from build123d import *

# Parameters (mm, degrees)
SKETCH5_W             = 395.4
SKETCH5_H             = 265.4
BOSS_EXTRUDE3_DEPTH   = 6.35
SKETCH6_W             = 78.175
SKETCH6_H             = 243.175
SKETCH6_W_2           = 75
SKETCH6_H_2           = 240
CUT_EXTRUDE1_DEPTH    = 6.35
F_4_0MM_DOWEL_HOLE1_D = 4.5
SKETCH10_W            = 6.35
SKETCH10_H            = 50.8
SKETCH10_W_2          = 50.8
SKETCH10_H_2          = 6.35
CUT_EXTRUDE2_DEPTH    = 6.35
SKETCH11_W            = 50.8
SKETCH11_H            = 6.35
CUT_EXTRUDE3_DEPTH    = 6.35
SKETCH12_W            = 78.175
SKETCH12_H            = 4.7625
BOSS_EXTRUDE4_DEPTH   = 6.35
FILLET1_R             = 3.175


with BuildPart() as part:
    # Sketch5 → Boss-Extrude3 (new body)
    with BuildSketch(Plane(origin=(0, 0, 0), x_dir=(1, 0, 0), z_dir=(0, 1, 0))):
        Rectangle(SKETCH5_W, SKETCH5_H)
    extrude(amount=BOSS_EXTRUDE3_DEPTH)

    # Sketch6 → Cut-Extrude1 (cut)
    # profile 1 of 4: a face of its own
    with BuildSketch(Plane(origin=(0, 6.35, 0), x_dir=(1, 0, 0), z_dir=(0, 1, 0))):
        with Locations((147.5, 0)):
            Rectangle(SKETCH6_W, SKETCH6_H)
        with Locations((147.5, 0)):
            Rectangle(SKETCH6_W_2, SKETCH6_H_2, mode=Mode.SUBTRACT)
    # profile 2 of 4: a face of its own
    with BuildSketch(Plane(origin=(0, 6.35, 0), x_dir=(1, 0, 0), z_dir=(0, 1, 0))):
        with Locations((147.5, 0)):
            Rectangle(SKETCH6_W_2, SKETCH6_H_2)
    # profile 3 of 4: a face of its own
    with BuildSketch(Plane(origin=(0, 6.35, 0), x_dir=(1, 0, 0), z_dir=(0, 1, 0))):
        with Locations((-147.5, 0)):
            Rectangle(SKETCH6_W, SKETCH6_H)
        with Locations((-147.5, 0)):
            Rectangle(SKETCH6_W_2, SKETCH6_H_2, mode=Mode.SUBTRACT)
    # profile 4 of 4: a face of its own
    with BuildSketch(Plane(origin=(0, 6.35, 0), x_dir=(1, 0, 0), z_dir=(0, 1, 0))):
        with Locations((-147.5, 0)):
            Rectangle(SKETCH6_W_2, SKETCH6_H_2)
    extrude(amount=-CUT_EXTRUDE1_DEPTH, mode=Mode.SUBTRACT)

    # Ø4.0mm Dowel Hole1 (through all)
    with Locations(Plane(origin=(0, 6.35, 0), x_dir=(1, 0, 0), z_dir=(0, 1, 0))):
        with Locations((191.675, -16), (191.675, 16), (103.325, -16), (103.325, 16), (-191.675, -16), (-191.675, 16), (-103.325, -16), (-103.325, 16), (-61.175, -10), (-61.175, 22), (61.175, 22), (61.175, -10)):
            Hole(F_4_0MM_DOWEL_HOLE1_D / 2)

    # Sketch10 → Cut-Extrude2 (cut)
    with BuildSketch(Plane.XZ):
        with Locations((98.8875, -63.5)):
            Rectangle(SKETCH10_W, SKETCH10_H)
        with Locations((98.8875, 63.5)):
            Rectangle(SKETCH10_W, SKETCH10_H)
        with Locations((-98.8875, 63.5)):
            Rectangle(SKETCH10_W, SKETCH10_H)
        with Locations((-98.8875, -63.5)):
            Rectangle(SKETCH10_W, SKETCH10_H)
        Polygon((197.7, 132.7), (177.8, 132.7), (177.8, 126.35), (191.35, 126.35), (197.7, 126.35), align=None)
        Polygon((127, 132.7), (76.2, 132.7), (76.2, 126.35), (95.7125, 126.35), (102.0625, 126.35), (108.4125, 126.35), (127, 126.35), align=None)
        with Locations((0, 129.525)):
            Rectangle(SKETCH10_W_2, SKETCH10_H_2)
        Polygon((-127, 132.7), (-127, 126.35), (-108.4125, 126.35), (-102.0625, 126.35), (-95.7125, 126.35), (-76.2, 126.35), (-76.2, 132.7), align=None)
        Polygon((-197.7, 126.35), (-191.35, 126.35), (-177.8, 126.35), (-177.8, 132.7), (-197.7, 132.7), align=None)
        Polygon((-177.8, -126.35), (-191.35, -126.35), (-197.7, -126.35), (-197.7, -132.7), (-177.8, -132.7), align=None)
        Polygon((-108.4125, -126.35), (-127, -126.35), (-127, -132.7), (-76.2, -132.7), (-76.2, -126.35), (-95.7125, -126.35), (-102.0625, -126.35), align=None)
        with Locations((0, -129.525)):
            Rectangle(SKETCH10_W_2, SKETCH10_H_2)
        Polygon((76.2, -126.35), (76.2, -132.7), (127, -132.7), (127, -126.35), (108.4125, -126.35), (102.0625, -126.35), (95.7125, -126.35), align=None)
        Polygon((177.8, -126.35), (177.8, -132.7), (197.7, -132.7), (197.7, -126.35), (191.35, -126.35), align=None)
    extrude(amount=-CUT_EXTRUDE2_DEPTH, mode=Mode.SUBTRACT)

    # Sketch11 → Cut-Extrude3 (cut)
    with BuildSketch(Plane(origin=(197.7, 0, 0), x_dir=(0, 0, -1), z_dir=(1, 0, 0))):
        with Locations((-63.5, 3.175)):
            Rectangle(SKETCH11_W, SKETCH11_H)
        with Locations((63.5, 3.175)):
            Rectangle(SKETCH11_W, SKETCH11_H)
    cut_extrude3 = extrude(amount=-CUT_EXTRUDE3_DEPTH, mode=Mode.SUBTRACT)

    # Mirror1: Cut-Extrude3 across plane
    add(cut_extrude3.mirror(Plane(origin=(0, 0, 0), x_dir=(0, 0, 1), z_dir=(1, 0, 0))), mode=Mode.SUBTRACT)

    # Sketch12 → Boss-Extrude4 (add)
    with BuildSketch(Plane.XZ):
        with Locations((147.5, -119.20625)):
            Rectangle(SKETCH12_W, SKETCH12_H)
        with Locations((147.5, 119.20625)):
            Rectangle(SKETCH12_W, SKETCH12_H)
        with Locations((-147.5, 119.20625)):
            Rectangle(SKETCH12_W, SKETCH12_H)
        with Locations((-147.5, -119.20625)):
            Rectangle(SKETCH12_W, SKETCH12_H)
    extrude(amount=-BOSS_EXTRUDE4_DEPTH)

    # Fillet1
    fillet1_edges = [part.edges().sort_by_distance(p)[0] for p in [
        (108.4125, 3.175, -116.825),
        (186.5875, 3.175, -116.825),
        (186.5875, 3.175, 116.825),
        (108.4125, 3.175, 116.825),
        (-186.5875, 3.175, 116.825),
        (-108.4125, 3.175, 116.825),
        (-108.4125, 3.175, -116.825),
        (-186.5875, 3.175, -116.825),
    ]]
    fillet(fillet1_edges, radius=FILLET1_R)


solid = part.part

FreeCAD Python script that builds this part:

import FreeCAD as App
import Part
import Sketcher
from FreeCAD import Vector


def edges_at(feature, points):
    """Names of the edges that pass closest to the given points."""
    edges = feature.Shape.Edges
    near = lambda p: min(range(len(edges)), key=lambda i: edges[i].distToShape(Part.Vertex(*p))[0])
    return sorted({f"Edge{near(p) + 1}" for p in points})

doc = App.newDocument("Part")
body = doc.addObject("PartDesign::Body", "Body")

# Sketch on XZ plane
sketch1 = body.newObject("Sketcher::SketchObject", "Sketch")
sketch1.AttachmentSupport = (doc.getObject("XZ_Plane"), [""])
sketch1.MapMode = "FlatFace"
sketch1.addGeometry([
    Part.LineSegment(Vector(-198, -133, 0), Vector(-198, 133, 0)),
    Part.LineSegment(Vector(-198, 133, 0), Vector(198, 133, 0)),
    Part.LineSegment(Vector(198, 133, 0), Vector(198, -133, 0)),
    Part.LineSegment(Vector(198, -133, 0), Vector(-198, -133, 0)),
], False)
sketch1.addConstraint([
    Sketcher.Constraint("Coincident", 0, 2, 1, 1),
    Sketcher.Constraint("Coincident", 1, 2, 2, 1),
    Sketcher.Constraint("Coincident", 2, 2, 3, 1),
    Sketcher.Constraint("Coincident", 3, 2, 0, 1),
    Sketcher.Constraint("Vertical", 0),
    Sketcher.Constraint("Horizontal", 1),
    Sketcher.Constraint("Vertical", 2),
    Sketcher.Constraint("Horizontal", 3),
    Sketcher.Constraint("Symmetric", 0, 2, 2, 2, -1, 1),
    Sketcher.Constraint("DistanceX", 1, 1, 1, 2, 395.4),
    Sketcher.Constraint("DistanceY", 0, 1, 0, 2, 265.4),
])
pad1 = body.newObject("PartDesign::Pad", "Pad")
pad1.Profile = sketch1
pad1.Length = 6.35
pad1.Reversed = True

# Sketch on XZ plane
sketch2 = body.newObject("Sketcher::SketchObject", "Sketch001")
sketch2.AttachmentSupport = (doc.getObject("XZ_Plane"), [""])
sketch2.MapMode = "FlatFace"
sketch2.AttachmentOffset = App.Placement(Vector(0, 0, -6.35), App.Rotation())
sketch2.addGeometry([
    Part.LineSegment(Vector(108, -122, 0), Vector(108, 122, 0)),  # 0
    Part.LineSegment(Vector(108, 122, 0), Vector(187, 122, 0)),  # 1
    Part.LineSegment(Vector(187, 122, 0), Vector(187, -122, 0)),  # 2
    Part.LineSegment(Vector(187, -122, 0), Vector(108, -122, 0)),  # 3
    Part.LineSegment(Vector(-187, -122, 0), Vector(-187, 122, 0)),  # 4
    Part.LineSegment(Vector(-187, 122, 0), Vector(-108, 122, 0)),  # 5
    Part.LineSegment(Vector(-108, 122, 0), Vector(-108, -122, 0)),  # 6
    Part.LineSegment(Vector(-108, -122, 0), Vector(-187, -122, 0)),  # 7
], False)
sketch2.addConstraint([
    Sketcher.Constraint("Coincident", 0, 2, 1, 1),
    Sketcher.Constraint("Coincident", 1, 2, 2, 1),
    Sketcher.Constraint("Coincident", 2, 2, 3, 1),
    Sketcher.Constraint("Coincident", 3, 2, 0, 1),
    Sketcher.Constraint("Coincident", 4, 2, 5, 1),
    Sketcher.Constraint("Coincident", 5, 2, 6, 1),
    Sketcher.Constraint("Coincident", 6, 2, 7, 1),
    Sketcher.Constraint("Coincident", 7, 2, 4, 1),
    Sketcher.Constraint("Vertical", 0),
    Sketcher.Constraint("Horizontal", 1),
    Sketcher.Constraint("Vertical", 2),
    Sketcher.Constraint("Horizontal", 3),
    Sketcher.Constraint("Vertical", 4),
    Sketcher.Constraint("Horizontal", 5),
    Sketcher.Constraint("Vertical", 6),
    Sketcher.Constraint("Horizontal", 7),
    Sketcher.Constraint("Symmetric", 2, 2, 4, 2, -1, 1),
    Sketcher.Constraint("Symmetric", 0, 2, 6, 2, -1, 1),
    Sketcher.Constraint("Horizontal", 1, 2, 4, 2),
    Sketcher.Constraint("DistanceX", 4, 2, 0, 2, 295.0),
    Sketcher.Constraint("DistanceX", 1, 1, 1, 2, 78.175),
    Sketcher.Constraint("DistanceY", 0, 1, 0, 2, 243.175),
])
pocket1 = body.newObject("PartDesign::Pocket", "Pocket")
pocket1.Profile = sketch2
pocket1.Length = 6.35
pocket1.Reversed = True

# Sketch on XZ plane
sketch3 = body.newObject("Sketcher::SketchObject", "Sketch002")
sketch3.AttachmentSupport = (doc.getObject("XZ_Plane"), [""])
sketch3.MapMode = "FlatFace"
sketch3.AttachmentOffset = App.Placement(Vector(0, 0, -6.35), App.Rotation())
sketch3.addGeometry([
    Part.Circle(Vector(191.7, 16, 0), Vector(0, 0, 1), 2.2),  # 0
    Part.Circle(Vector(191.7, -16, 0), Vector(0, 0, 1), 2.2),  # 1
    Part.Circle(Vector(103.3, 16, 0), Vector(0, 0, 1), 2.2),  # 2
    Part.Circle(Vector(103.3, -16, 0), Vector(0, 0, 1), 2.2),  # 3
    Part.Circle(Vector(-191.7, 16, 0), Vector(0, 0, 1), 2.2),  # 4
    Part.Circle(Vector(-191.7, -16, 0), Vector(0, 0, 1), 2.2),  # 5
    Part.Circle(Vector(-103.3, 16, 0), Vector(0, 0, 1), 2.2),  # 6
    Part.Circle(Vector(-103.3, -16, 0), Vector(0, 0, 1), 2.2),  # 7
    Part.Circle(Vector(-61.2, 10, 0), Vector(0, 0, 1), 2.2),  # 8
    Part.Circle(Vector(-61.2, -22, 0), Vector(0, 0, 1), 2.2),  # 9
    Part.Circle(Vector(61.2, -22, 0), Vector(0, 0, 1), 2.2),  # 10
    Part.Circle(Vector(61.2, 10, 0), Vector(0, 0, 1), 2.2),  # 11
], False)
sketch3.addConstraint([
    Sketcher.Constraint("Equal", 0, 1),
    Sketcher.Constraint("Equal", 1, 2),
    Sketcher.Constraint("Equal", 2, 3),
    Sketcher.Constraint("Equal", 3, 4),
    Sketcher.Constraint("Equal", 4, 5),
    Sketcher.Constraint("Equal", 5, 6),
    Sketcher.Constraint("Equal", 6, 7),
    Sketcher.Constraint("Equal", 7, 8),
    Sketcher.Constraint("Equal", 8, 9),
    Sketcher.Constraint("Equal", 9, 10),
    Sketcher.Constraint("Equal", 10, 11),
    Sketcher.Constraint("Symmetric", 1, 3, 4, 3, -1, 1),
    Sketcher.Constraint("Symmetric", 0, 3, 5, 3, -1, 1),
    Sketcher.Constraint("Symmetric", 3, 3, 6, 3, -1, 1),
    Sketcher.Constraint("Symmetric", 2, 3, 7, 3, -1, 1),
    Sketcher.Constraint("Symmetric", 0, 3, 4, 3, -2),
    Sketcher.Constraint("Symmetric", 2, 3, 6, 3, -2),
    Sketcher.Constraint("Symmetric", 9, 3, 10, 3, -2),
    Sketcher.Constraint("Symmetric", 8, 3, 11, 3, -2),
    Sketcher.Constraint("Horizontal", 0, 3, 2, 3),
    Sketcher.Constraint("Vertical", 8, 3, 9, 3),
    Sketcher.Constraint("Diameter", 0, 4.5),
    Sketcher.Constraint("DistanceY", -1, 1, 0, 3, 16.0),
    Sketcher.Constraint("DistanceY", -1, 1, 8, 3, 10.0),
    Sketcher.Constraint("DistanceY", 9, 3, -1, 1, 22.0),
    Sketcher.Constraint("DistanceX", 4, 3, 2, 3, 295.0),
    Sketcher.Constraint("DistanceX", 4, 3, 8, 3, 130.5),
    Sketcher.Constraint("DistanceX", 2, 3, 0, 3, 88.35),
])
doc.recompute()
hole = body.newObject("PartDesign::Hole", "Hole")
hole.Profile = sketch3
hole.ThreadType = "None"
hole.Diameter = 4.5
hole.DepthType = "ThroughAll"
hole.Reversed = True

# Sketch on XZ plane
sketch4 = body.newObject("Sketcher::SketchObject", "Sketch003")
sketch4.AttachmentSupport = (doc.getObject("XZ_Plane"), [""])
sketch4.MapMode = "FlatFace"
sketch4.addGeometry([
    Part.LineSegment(Vector(96, -38, 0), Vector(96, -89, 0)),  # 0
    Part.LineSegment(Vector(96, -89, 0), Vector(102, -89, 0)),  # 1
    Part.LineSegment(Vector(102, -89, 0), Vector(102, -38, 0)),  # 2
    Part.LineSegment(Vector(102, -38, 0), Vector(96, -38, 0)),  # 3
    Part.LineSegment(Vector(96, 89, 0), Vector(96, 38, 0)),  # 4
    Part.LineSegment(Vector(96, 38, 0), Vector(102, 38, 0)),  # 5
    Part.LineSegment(Vector(102, 38, 0), Vector(102, 89, 0)),  # 6
    Part.LineSegment(Vector(102, 89, 0), Vector(96, 89, 0)),  # 7
    Part.LineSegment(Vector(-102, 89, 0), Vector(-102, 38, 0)),  # 8
    Part.LineSegment(Vector(-102, 38, 0), Vector(-96, 38, 0)),  # 9
    Part.LineSegment(Vector(-96, 38, 0), Vector(-96, 89, 0)),  # 10
    Part.LineSegment(Vector(-96, 89, 0), Vector(-102, 89, 0)),  # 11
    Part.LineSegment(Vector(-102, -38, 0), Vector(-102, -89, 0)),  # 12
    Part.LineSegment(Vector(-102, -89, 0), Vector(-96, -89, 0)),  # 13
    Part.LineSegment(Vector(-96, -89, 0), Vector(-96, -38, 0)),  # 14
    Part.LineSegment(Vector(-96, -38, 0), Vector(-102, -38, 0)),  # 15
    Part.LineSegment(Vector(198, 133, 0), Vector(178, 133, 0)),  # 16
    Part.LineSegment(Vector(178, 133, 0), Vector(178, 126, 0)),  # 17
    Part.LineSegment(Vector(178, 126, 0), Vector(198, 126, 0)),  # 18
    Part.LineSegment(Vector(198, 126, 0), Vector(198, 133, 0)),  # 19
    Part.LineSegment(Vector(127, 133, 0), Vector(76, 133, 0)),  # 20
    Part.LineSegment(Vector(76, 133, 0), Vector(76, 126, 0)),  # 21
    Part.LineSegment(Vector(76, 126, 0), Vector(127, 126, 0)),  # 22
    Part.LineSegment(Vector(127, 126, 0), Vector(127, 133, 0)),  # 23
    Part.LineSegment(Vector(-25, 133, 0), Vector(-25, 126, 0)),  # 24
    Part.LineSegment(Vector(-25, 126, 0), Vector(25, 126, 0)),  # 25
    Part.LineSegment(Vector(25, 126, 0), Vector(25, 133, 0)),  # 26
    Part.LineSegment(Vector(25, 133, 0), Vector(-25, 133, 0)),  # 27
    Part.LineSegment(Vector(-127, 133, 0), Vector(-127, 126, 0)),  # 28
    Part.LineSegment(Vector(-127, 126, 0), Vector(-76, 126, 0)),  # 29
    Part.LineSegment(Vector(-76, 126, 0), Vector(-76, 133, 0)),  # 30
    Part.LineSegment(Vector(-76, 133, 0), Vector(-127, 133, 0)),  # 31
    Part.LineSegment(Vector(-198, 126, 0), Vector(-178, 126, 0)),  # 32
    Part.LineSegment(Vector(-178, 126, 0), Vector(-178, 133, 0)),  # 33
    Part.LineSegment(Vector(-178, 133, 0), Vector(-198, 133, 0)),  # 34
    Part.LineSegment(Vector(-198, 133, 0), Vector(-198, 126, 0)),  # 35
    Part.LineSegment(Vector(-178, -126, 0), Vector(-198, -126, 0)),  # 36
    Part.LineSegment(Vector(-198, -126, 0), Vector(-198, -133, 0)),  # 37
    Part.LineSegment(Vector(-198, -133, 0), Vector(-178, -133, 0)),  # 38
    Part.LineSegment(Vector(-178, -133, 0), Vector(-178, -126, 0)),  # 39
    Part.LineSegment(Vector(-127, -126, 0), Vector(-127, -133, 0)),  # 40
    Part.LineSegment(Vector(-127, -133, 0), Vector(-76, -133, 0)),  # 41
    Part.LineSegment(Vector(-76, -133, 0), Vector(-76, -126, 0)),  # 42
    Part.LineSegment(Vector(-76, -126, 0), Vector(-127, -126, 0)),  # 43
    Part.LineSegment(Vector(-25, -126, 0), Vector(-25, -133, 0)),  # 44
    Part.LineSegment(Vector(-25, -133, 0), Vector(25, -133, 0)),  # 45
    Part.LineSegment(Vector(25, -133, 0), Vector(25, -126, 0)),  # 46
    Part.LineSegment(Vector(25, -126, 0), Vector(-25, -126, 0)),  # 47
    Part.LineSegment(Vector(76, -126, 0), Vector(76, -133, 0)),  # 48
    Part.LineSegment(Vector(76, -133, 0), Vector(127, -133, 0)),  # 49
    Part.LineSegment(Vector(127, -133, 0), Vector(127, -126, 0)),  # 50
    Part.LineSegment(Vector(127, -126, 0), Vector(76, -126, 0)),  # 51
    Part.LineSegment(Vector(178, -126, 0), Vector(178, -133, 0)),  # 52
    Part.LineSegment(Vector(178, -133, 0), Vector(198, -133, 0)),  # 53
    Part.LineSegment(Vector(198, -133, 0), Vector(198, -126, 0)),  # 54
    Part.LineSegment(Vector(198, -126, 0), Vector(178, -126, 0)),  # 55
], False)
sketch4.addConstraint([
    Sketcher.Constraint("Coincident", 0, 2, 1, 1),
    Sketcher.Constraint("Coincident", 1, 2, 2, 1),
    Sketcher.Constraint("Coincident", 2, 2, 3, 1),
    Sketcher.Constraint("Coincident", 3, 2, 0, 1),
    Sketcher.Constraint("Coincident", 4, 2, 5, 1),
    Sketcher.Constraint("Coincident", 5, 2, 6, 1),
    Sketcher.Constraint("Coincident", 6, 2, 7, 1),
    Sketcher.Constraint("Coincident", 7, 2, 4, 1),
    Sketcher.Constraint("Coincident", 8, 2, 9, 1),
    Sketcher.Constraint("Coincident", 9, 2, 10, 1),
    Sketcher.Constraint("Coincident", 10, 2, 11, 1),
    Sketcher.Constraint("Coincident", 11, 2, 8, 1),
    Sketcher.Constraint("Coincident", 12, 2, 13, 1),
    Sketcher.Constraint("Coincident", 13, 2, 14, 1),
    Sketcher.Constraint("Coincident", 14, 2, 15, 1),
    Sketcher.Constraint("Coincident", 15, 2, 12, 1),
    Sketcher.Constraint("Coincident", 16, 2, 17, 1),
    Sketcher.Constraint("Coincident", 17, 2, 18, 1),
    Sketcher.Constraint("Coincident", 18, 2, 19, 1),
    Sketcher.Constraint("Coincident", 19, 2, 16, 1),
    Sketcher.Constraint("Coincident", 20, 2, 21, 1),
    Sketcher.Constraint("Coincident", 21, 2, 22, 1),
    Sketcher.Constraint("Coincident", 22, 2, 23, 1),
    Sketcher.Constraint("Coincident", 23, 2, 20, 1),
    Sketcher.Constraint("Coincident", 24, 2, 25, 1),
    Sketcher.Constraint("Coincident", 25, 2, 26, 1),
    Sketcher.Constraint("Coincident", 26, 2, 27, 1),
    Sketcher.Constraint("Coincident", 27, 2, 24, 1),
    Sketcher.Constraint("Coincident", 28, 2, 29, 1),
    Sketcher.Constraint("Coincident", 29, 2, 30, 1),
    Sketcher.Constraint("Coincident", 30, 2, 31, 1),
    Sketcher.Constraint("Coincident", 31, 2, 28, 1),
    Sketcher.Constraint("Coincident", 32, 2, 33, 1),
    Sketcher.Constraint("Coincident", 33, 2, 34, 1),
    Sketcher.Constraint("Coincident", 34, 2, 35, 1),
    Sketcher.Constraint("Coincident", 35, 2, 32, 1),
    Sketcher.Constraint("Coincident", 36, 2, 37, 1),
    Sketcher.Constraint("Coincident", 37, 2, 38, 1),
    Sketcher.Constraint("Coincident", 38, 2, 39, 1),
    Sketcher.Constraint("Coincident", 39, 2, 36, 1),
    Sketcher.Constraint("Coincident", 40, 2, 41, 1),
    Sketcher.Constraint("Coincident", 41, 2, 42, 1),
    Sketcher.Constraint("Coincident", 42, 2, 43, 1),
    Sketcher.Constraint("Coincident", 43, 2, 40, 1),
    Sketcher.Constraint("Coincident", 44, 2, 45, 1),
    Sketcher.Constraint("Coincident", 45, 2, 46, 1),
    Sketcher.Constraint("Coincident", 46, 2, 47, 1),
    Sketcher.Constraint("Coincident", 47, 2, 44, 1),
    Sketcher.Constraint("Coincident", 48, 2, 49, 1),
    Sketcher.Constraint("Coincident", 49, 2, 50, 1),
    Sketcher.Constraint("Coincident", 50, 2, 51, 1),
    Sketcher.Constraint("Coincident", 51, 2, 48, 1),
    Sketcher.Constraint("Coincident", 52, 2, 53, 1),
    Sketcher.Constraint("Coincident", 53, 2, 54, 1),
    Sketcher.Constraint("Coincident", 54, 2, 55, 1),
    Sketcher.Constraint("Coincident", 55, 2, 52, 1),
    Sketcher.Constraint("Vertical", 0),
    Sketcher.Constraint("Horizontal", 1),
    Sketcher.Constraint("Vertical", 2),
    Sketcher.Constraint("Horizontal", 3),
    Sketcher.Constraint("Vertical", 4),
    Sketcher.Constraint("Horizontal", 5),
    Sketcher.Constraint("Vertical", 6),
    Sketcher.Constraint("Horizontal", 7),
    Sketcher.Constraint("Vertical", 8),
    Sketcher.Constraint("Horizontal", 9),
    Sketcher.Constraint("Vertical", 10),
    Sketcher.Constraint("Horizontal", 11),
    Sketcher.Constraint("Vertical", 12),
    Sketcher.Constraint("Horizontal", 13),
    Sketcher.Constraint("Vertical", 14),
    Sketcher.Constraint("Horizontal", 15),
    Sketcher.Constraint("Horizontal", 16),
    Sketcher.Constraint("Vertical", 17),
    Sketcher.Constraint("Horizontal", 18),
    Sketcher.Constraint("Vertical", 19),
    Sketcher.Constraint("Horizontal", 20),
    Sketcher.Constraint("Vertical", 21),
    Sketcher.Constraint("Horizontal", 22),
    Sketcher.Constraint("Vertical", 23),
    Sketcher.Constraint("Vertical", 24),
    Sketcher.Constraint("Horizontal", 25),
    Sketcher.Constraint("Vertical", 26),
    Sketcher.Constraint("Horizontal", 27),
    Sketcher.Constraint("Vertical", 28),
    Sketcher.Constraint("Horizontal", 29),
    Sketcher.Constraint("Vertical", 30),
    Sketcher.Constraint("Horizontal", 31),
    Sketcher.Constraint("Horizontal", 32),
    Sketcher.Constraint("Vertical", 33),
    Sketcher.Constraint("Horizontal", 34),
    Sketcher.Constraint("Vertical", 35),
    Sketcher.Constraint("Horizontal", 36),
    Sketcher.Constraint("Vertical", 37),
    Sketcher.Constraint("Horizontal", 38),
    Sketcher.Constraint("Vertical", 39),
    Sketcher.Constraint("Vertical", 40),
    Sketcher.Constraint("Horizontal", 41),
    Sketcher.Constraint("Vertical", 42),
    Sketcher.Constraint("Horizontal", 43),
    Sketcher.Constraint("Vertical", 44),
    Sketcher.Constraint("Horizontal", 45),
    Sketcher.Constraint("Vertical", 46),
    Sketcher.Constraint("Horizontal", 47),
    Sketcher.Constraint("Vertical", 48),
    Sketcher.Constraint("Horizontal", 49),
    Sketcher.Constraint("Vertical", 50),
    Sketcher.Constraint("Horizontal", 51),
    Sketcher.Constraint("Vertical", 52),
    Sketcher.Constraint("Horizontal", 53),
    Sketcher.Constraint("Vertical", 54),
    Sketcher.Constraint("Horizontal", 55),
    Sketcher.Constraint("Symmetric", 2, 2, 8, 2, -1, 1),
    Sketcher.Constraint("Symmetric", 0, 2, 10, 2, -1, 1),
    Sketcher.Constraint("Symmetric", 6, 2, 12, 2, -1, 1),
    Sketcher.Constraint("Symmetric", 4, 2, 14, 2, -1, 1),
    Sketcher.Constraint("Symmetric", 18, 2, 36, 2, -1, 1),
    Sketcher.Constraint("Symmetric", 16, 2, 38, 2, -1, 1),
    Sketcher.Constraint("Symmetric", 23, 2, 40, 2, -1, 1),
    Sketcher.Constraint("Symmetric", 21, 2, 42, 2, -1, 1),
    Sketcher.Constraint("Symmetric", 26, 2, 44, 2, -1, 1),
    Sketcher.Constraint("Symmetric", 24, 2, 46, 2, -1, 1),
    Sketcher.Constraint("Symmetric", 30, 2, 48, 2, -1, 1),
    Sketcher.Constraint("Symmetric", 28, 2, 50, 2, -1, 1),
    Sketcher.Constraint("Symmetric", 33, 2, 52, 2, -1, 1),
    Sketcher.Constraint("Symmetric", 35, 2, 54, 2, -1, 1),
    Sketcher.Constraint("Symmetric", 5, 2, 8, 2, -2),
    Sketcher.Constraint("Symmetric", 7, 2, 10, 2, -2),
    Sketcher.Constraint("Symmetric", 22, 2, 28, 2, -2),
    Sketcher.Constraint("Symmetric", 20, 2, 30, 2, -2),
    Sketcher.Constraint("Symmetric", 17, 2, 32, 2, -2),
    Sketcher.Constraint("Symmetric", 19, 2, 34, 2, -2),
    Sketcher.Constraint("Horizontal", 19, 2, 20, 2),
    Sketcher.Constraint("Horizontal", 18, 2, 21, 2),
    Sketcher.Constraint("Horizontal", 22, 2, 24, 2),
    Sketcher.Constraint("Horizontal", 23, 2, 26, 2),
    Sketcher.Constraint("Vertical", 27, 2, 44, 2),
    Sketcher.Constraint("Equal", 22, 25),
    Sketcher.Constraint("Equal", 51, 0),
    Sketcher.Constraint("Equal", 15, 17),
    Sketcher.Constraint("DistanceX", 16, 2, 16, 1, 19.9),
    Sketcher.Constraint("DistanceX", 20, 2, 20, 1, 50.8),
    Sketcher.Constraint("DistanceX", -1, 1, 22, 2, 127.0),
    Sketcher.Constraint("DistanceY", 0, 2, 4, 2, 127.0),
    Sketcher.Constraint("DistanceX", 1, 1, 1, 2, 6.35),
    Sketcher.Constraint("DistanceX", -1, 1, 16, 2, 177.8),
    Sketcher.Constraint("DistanceY", -1, 1, 16, 2, 132.7),
    Sketcher.Constraint("DistanceX", 8, 2, 4, 2, 197.775),
])
pocket2 = body.newObject("PartDesign::Pocket", "Pocket001")
pocket2.Profile = sketch4
pocket2.Length = 6.35

# Sketch on YZ plane
sketch5 = body.newObject("Sketcher::SketchObject", "Sketch004")
sketch5.AttachmentSupport = (doc.getObject("YZ_Plane"), [""])
sketch5.MapMode = "FlatFace"
sketch5.AttachmentOffset = App.Placement(Vector(0, 0, 197.7), App.Rotation())
sketch5.addGeometry([
    Part.LineSegment(Vector(6, 89, 0), Vector(0, 89, 0)),  # 0
    Part.LineSegment(Vector(0, 89, 0), Vector(0, 38, 0)),  # 1
    Part.LineSegment(Vector(0, 38, 0), Vector(6, 38, 0)),  # 2
    Part.LineSegment(Vector(6, 38, 0), Vector(6, 89, 0)),  # 3
    Part.LineSegment(Vector(6, -38, 0), Vector(0, -38, 0)),  # 4
    Part.LineSegment(Vector(0, -38, 0), Vector(0, -89, 0)),  # 5
    Part.LineSegment(Vector(0, -89, 0), Vector(6, -89, 0)),  # 6
    Part.LineSegment(Vector(6, -89, 0), Vector(6, -38, 0)),  # 7
], False)
sketch5.addConstraint([
    Sketcher.Constraint("Coincident", 0, 2, 1, 1),
    Sketcher.Constraint("Coincident", 1, 2, 2, 1),
    Sketcher.Constraint("Coincident", 2, 2, 3, 1),
    Sketcher.Constraint("Coincident", 3, 2, 0, 1),
    Sketcher.Constraint("Coincident", 4, 2, 5, 1),
    Sketcher.Constraint("Coincident", 5, 2, 6, 1),
    Sketcher.Constraint("Coincident", 6, 2, 7, 1),
    Sketcher.Constraint("Coincident", 7, 2, 4, 1),
    Sketcher.Constraint("Horizontal", 0),
    Sketcher.Constraint("Vertical", 1),
    Sketcher.Constraint("Horizontal", 2),
    Sketcher.Constraint("Vertical", 3),
    Sketcher.Constraint("Horizontal", 4),
    Sketcher.Constraint("Vertical", 5),
    Sketcher.Constraint("Horizontal", 6),
    Sketcher.Constraint("Vertical", 7),
    Sketcher.Constraint("Symmetric", 1, 2, 4, 2, -1, 1),
    Sketcher.Constraint("Symmetric", 0, 2, 5, 2, -1),
    Sketcher.Constraint("Vertical", 3, 2, 6, 2),
    Sketcher.Constraint("DistanceY", 1, 2, 1, 1, 50.8),
    Sketcher.Constraint("DistanceY", 4, 2, 0, 2, 127.0),
    Sketcher.Constraint("DistanceX", 0, 2, 0, 1, 6.35),
])
pocket3 = body.newObject("PartDesign::Pocket", "Pocket002")
pocket3.Profile = sketch5
pocket3.Length = 6.35
doc.recompute()

mirrored = body.newObject("PartDesign::Mirrored", "Mirrored")
mirrored.Originals = [pocket3]
mirrored.MirrorPlane = (doc.getObject("YZ_Plane"), [""])
body.Tip = mirrored

# Sketch on XZ plane
sketch6 = body.newObject("Sketcher::SketchObject", "Sketch005")
sketch6.AttachmentSupport = (doc.getObject("XZ_Plane"), [""])
sketch6.MapMode = "FlatFace"
sketch6.addGeometry([
    Part.LineSegment(Vector(108.4, -116.8, 0), Vector(108.4, -121.6, 0)),  # 0
    Part.LineSegment(Vector(108.4, -121.6, 0), Vector(186.6, -121.6, 0)),  # 1
    Part.LineSegment(Vector(186.6, -121.6, 0), Vector(186.6, -116.8, 0)),  # 2
    Part.LineSegment(Vector(186.6, -116.8, 0), Vector(108.4, -116.8, 0)),  # 3
    Part.LineSegment(Vector(108.4, 121.6, 0), Vector(108.4, 116.8, 0)),  # 4
    Part.LineSegment(Vector(108.4, 116.8, 0), Vector(186.6, 116.8, 0)),  # 5
    Part.LineSegment(Vector(186.6, 116.8, 0), Vector(186.6, 121.6, 0)),  # 6
    Part.LineSegment(Vector(186.6, 121.6, 0), Vector(108.4, 121.6, 0)),  # 7
    Part.LineSegment(Vector(-186.6, 121.6, 0), Vector(-186.6, 116.8, 0)),  # 8
    Part.LineSegment(Vector(-186.6, 116.8, 0), Vector(-108.4, 116.8, 0)),  # 9
    Part.LineSegment(Vector(-108.4, 116.8, 0), Vector(-108.4, 121.6, 0)),  # 10
    Part.LineSegment(Vector(-108.4, 121.6, 0), Vector(-186.6, 121.6, 0)),  # 11
    Part.LineSegment(Vector(-186.6, -116.8, 0), Vector(-186.6, -121.6, 0)),  # 12
    Part.LineSegment(Vector(-186.6, -121.6, 0), Vector(-108.4, -121.6, 0)),  # 13
    Part.LineSegment(Vector(-108.4, -121.6, 0), Vector(-108.4, -116.8, 0)),  # 14
    Part.LineSegment(Vector(-108.4, -116.8, 0), Vector(-186.6, -116.8, 0)),  # 15
], False)
sketch6.addConstraint([
    Sketcher.Constraint("Coincident", 0, 2, 1, 1),
    Sketcher.Constraint("Coincident", 1, 2, 2, 1),
    Sketcher.Constraint("Coincident", 2, 2, 3, 1),
    Sketcher.Constraint("Coincident", 3, 2, 0, 1),
    Sketcher.Constraint("Coincident", 4, 2, 5, 1),
    Sketcher.Constraint("Coincident", 5, 2, 6, 1),
    Sketcher.Constraint("Coincident", 6, 2, 7, 1),
    Sketcher.Constraint("Coincident", 7, 2, 4, 1),
    Sketcher.Constraint("Coincident", 8, 2, 9, 1),
    Sketcher.Constraint("Coincident", 9, 2, 10, 1),
    Sketcher.Constraint("Coincident", 10, 2, 11, 1),
    Sketcher.Constraint("Coincident", 11, 2, 8, 1),
    Sketcher.Constraint("Coincident", 12, 2, 13, 1),
    Sketcher.Constraint("Coincident", 13, 2, 14, 1),
    Sketcher.Constraint("Coincident", 14, 2, 15, 1),
    Sketcher.Constraint("Coincident", 15, 2, 12, 1),
    Sketcher.Constraint("Vertical", 0),
    Sketcher.Constraint("Horizontal", 1),
    Sketcher.Constraint("Vertical", 2),
    Sketcher.Constraint("Horizontal", 3),
    Sketcher.Constraint("Vertical", 4),
    Sketcher.Constraint("Horizontal", 5),
    Sketcher.Constraint("Vertical", 6),
    Sketcher.Constraint("Horizontal", 7),
    Sketcher.Constraint("Vertical", 8),
    Sketcher.Constraint("Horizontal", 9),
    Sketcher.Constraint("Vertical", 10),
    Sketcher.Constraint("Horizontal", 11),
    Sketcher.Constraint("Vertical", 12),
    Sketcher.Constraint("Horizontal", 13),
    Sketcher.Constraint("Vertical", 14),
    Sketcher.Constraint("Horizontal", 15),
    Sketcher.Constraint("Symmetric", 2, 2, 8, 2, -1, 1),
    Sketcher.Constraint("Symmetric", 0, 2, 10, 2, -1, 1),
    Sketcher.Constraint("Symmetric", 6, 2, 12, 2, -1, 1),
    Sketcher.Constraint("Symmetric", 4, 2, 14, 2, -1, 1),
    Sketcher.Constraint("Symmetric", 5, 2, 8, 2, -2),
    Sketcher.Constraint("Symmetric", 7, 2, 10, 2, -2),
    Sketcher.Constraint("DistanceX", 8, 2, 4, 2, 295.0),
    Sketcher.Constraint("DistanceX", 1, 1, 1, 2, 78.175),
    Sketcher.Constraint("DistanceY", 3, 2, 4, 2, 233.65),
    Sketcher.Constraint("DistanceY", 0, 2, 0, 1, 4.7625),
])
pad2 = body.newObject("PartDesign::Pad", "Pad001")
pad2.Profile = sketch6
pad2.Length = 6.35
pad2.Reversed = True
doc.recompute()

fillet = body.newObject("PartDesign::Fillet", "Fillet")
fillet.Base = (pad2, edges_at(pad2, [
    (108.412, 3.175, -116.825),
    (186.588, 3.175, -116.825),
    (186.588, 3.175, 116.825),
    (108.412, 3.175, 116.825),
    (-186.588, 3.175, 116.825),
    (-108.412, 3.175, 116.825),
    (-108.412, 3.175, -116.825),
    (-186.588, 3.175, -116.825),
]))
fillet.Radius = 3.175

doc.recompute()
